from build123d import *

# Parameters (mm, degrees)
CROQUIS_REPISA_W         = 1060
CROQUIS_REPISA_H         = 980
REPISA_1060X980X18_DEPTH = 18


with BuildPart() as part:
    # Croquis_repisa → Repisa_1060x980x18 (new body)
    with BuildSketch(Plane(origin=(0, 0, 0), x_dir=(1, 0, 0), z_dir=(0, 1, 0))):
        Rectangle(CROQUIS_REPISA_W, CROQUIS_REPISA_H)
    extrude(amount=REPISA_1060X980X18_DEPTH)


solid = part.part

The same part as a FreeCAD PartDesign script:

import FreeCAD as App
import Part
import Sketcher
Q = App.Units.Quantity

doc = App.newDocument("Part")
body = doc.addObject("PartDesign::Body", "Body")

sketch1 = body.newObject("Sketcher::SketchObject", "Sketch")
sketch1.AttachmentSupport = (doc.getObject("XZ_Plane"), [""])
sketch1.MapMode = "FlatFace"
sketch1.addGeometry([
    Part.LineSegment(App.Vector(-530, -490, 0), App.Vector(-530, 490, 0)),
    Part.LineSegment(App.Vector(-530, 490, 0), App.Vector(530, 490, 0)),
    Part.LineSegment(App.Vector(530, 490, 0), App.Vector(530, -490, 0)),
    Part.LineSegment(App.Vector(530, -490, 0), App.Vector(-530, -490, 0)),
], False)
sketch1.addConstraint([
    Sketcher.Constraint("Coincident", 0, 2, 1, 1),
    Sketcher.Constraint("Coincident", 1, 2, 2, 1),
    Sketcher.Constraint("Coincident", 2, 2, 3, 1),
    Sketcher.Constraint("Coincident", 3, 2, 0, 1),
    Sketcher.Constraint("Vertical", 0),
    Sketcher.Constraint("Horizontal", 1),
    Sketcher.Constraint("Vertical", 2),
    Sketcher.Constraint("Horizontal", 3),
    Sketcher.Constraint("Symmetric", 0, 2, 2, 2, -1, 1),
    Sketcher.Constraint("DistanceX", 1, 1, 1, 2, Q("1060 mm")),
    Sketcher.Constraint("DistanceY", 0, 1, 0, 2, Q("980 mm")),
])
pad1 = body.newObject("PartDesign::Pad", "Pad")
pad1.Profile = sketch1
pad1.Length = 18
pad1.Reversed = True

doc.recompute()
